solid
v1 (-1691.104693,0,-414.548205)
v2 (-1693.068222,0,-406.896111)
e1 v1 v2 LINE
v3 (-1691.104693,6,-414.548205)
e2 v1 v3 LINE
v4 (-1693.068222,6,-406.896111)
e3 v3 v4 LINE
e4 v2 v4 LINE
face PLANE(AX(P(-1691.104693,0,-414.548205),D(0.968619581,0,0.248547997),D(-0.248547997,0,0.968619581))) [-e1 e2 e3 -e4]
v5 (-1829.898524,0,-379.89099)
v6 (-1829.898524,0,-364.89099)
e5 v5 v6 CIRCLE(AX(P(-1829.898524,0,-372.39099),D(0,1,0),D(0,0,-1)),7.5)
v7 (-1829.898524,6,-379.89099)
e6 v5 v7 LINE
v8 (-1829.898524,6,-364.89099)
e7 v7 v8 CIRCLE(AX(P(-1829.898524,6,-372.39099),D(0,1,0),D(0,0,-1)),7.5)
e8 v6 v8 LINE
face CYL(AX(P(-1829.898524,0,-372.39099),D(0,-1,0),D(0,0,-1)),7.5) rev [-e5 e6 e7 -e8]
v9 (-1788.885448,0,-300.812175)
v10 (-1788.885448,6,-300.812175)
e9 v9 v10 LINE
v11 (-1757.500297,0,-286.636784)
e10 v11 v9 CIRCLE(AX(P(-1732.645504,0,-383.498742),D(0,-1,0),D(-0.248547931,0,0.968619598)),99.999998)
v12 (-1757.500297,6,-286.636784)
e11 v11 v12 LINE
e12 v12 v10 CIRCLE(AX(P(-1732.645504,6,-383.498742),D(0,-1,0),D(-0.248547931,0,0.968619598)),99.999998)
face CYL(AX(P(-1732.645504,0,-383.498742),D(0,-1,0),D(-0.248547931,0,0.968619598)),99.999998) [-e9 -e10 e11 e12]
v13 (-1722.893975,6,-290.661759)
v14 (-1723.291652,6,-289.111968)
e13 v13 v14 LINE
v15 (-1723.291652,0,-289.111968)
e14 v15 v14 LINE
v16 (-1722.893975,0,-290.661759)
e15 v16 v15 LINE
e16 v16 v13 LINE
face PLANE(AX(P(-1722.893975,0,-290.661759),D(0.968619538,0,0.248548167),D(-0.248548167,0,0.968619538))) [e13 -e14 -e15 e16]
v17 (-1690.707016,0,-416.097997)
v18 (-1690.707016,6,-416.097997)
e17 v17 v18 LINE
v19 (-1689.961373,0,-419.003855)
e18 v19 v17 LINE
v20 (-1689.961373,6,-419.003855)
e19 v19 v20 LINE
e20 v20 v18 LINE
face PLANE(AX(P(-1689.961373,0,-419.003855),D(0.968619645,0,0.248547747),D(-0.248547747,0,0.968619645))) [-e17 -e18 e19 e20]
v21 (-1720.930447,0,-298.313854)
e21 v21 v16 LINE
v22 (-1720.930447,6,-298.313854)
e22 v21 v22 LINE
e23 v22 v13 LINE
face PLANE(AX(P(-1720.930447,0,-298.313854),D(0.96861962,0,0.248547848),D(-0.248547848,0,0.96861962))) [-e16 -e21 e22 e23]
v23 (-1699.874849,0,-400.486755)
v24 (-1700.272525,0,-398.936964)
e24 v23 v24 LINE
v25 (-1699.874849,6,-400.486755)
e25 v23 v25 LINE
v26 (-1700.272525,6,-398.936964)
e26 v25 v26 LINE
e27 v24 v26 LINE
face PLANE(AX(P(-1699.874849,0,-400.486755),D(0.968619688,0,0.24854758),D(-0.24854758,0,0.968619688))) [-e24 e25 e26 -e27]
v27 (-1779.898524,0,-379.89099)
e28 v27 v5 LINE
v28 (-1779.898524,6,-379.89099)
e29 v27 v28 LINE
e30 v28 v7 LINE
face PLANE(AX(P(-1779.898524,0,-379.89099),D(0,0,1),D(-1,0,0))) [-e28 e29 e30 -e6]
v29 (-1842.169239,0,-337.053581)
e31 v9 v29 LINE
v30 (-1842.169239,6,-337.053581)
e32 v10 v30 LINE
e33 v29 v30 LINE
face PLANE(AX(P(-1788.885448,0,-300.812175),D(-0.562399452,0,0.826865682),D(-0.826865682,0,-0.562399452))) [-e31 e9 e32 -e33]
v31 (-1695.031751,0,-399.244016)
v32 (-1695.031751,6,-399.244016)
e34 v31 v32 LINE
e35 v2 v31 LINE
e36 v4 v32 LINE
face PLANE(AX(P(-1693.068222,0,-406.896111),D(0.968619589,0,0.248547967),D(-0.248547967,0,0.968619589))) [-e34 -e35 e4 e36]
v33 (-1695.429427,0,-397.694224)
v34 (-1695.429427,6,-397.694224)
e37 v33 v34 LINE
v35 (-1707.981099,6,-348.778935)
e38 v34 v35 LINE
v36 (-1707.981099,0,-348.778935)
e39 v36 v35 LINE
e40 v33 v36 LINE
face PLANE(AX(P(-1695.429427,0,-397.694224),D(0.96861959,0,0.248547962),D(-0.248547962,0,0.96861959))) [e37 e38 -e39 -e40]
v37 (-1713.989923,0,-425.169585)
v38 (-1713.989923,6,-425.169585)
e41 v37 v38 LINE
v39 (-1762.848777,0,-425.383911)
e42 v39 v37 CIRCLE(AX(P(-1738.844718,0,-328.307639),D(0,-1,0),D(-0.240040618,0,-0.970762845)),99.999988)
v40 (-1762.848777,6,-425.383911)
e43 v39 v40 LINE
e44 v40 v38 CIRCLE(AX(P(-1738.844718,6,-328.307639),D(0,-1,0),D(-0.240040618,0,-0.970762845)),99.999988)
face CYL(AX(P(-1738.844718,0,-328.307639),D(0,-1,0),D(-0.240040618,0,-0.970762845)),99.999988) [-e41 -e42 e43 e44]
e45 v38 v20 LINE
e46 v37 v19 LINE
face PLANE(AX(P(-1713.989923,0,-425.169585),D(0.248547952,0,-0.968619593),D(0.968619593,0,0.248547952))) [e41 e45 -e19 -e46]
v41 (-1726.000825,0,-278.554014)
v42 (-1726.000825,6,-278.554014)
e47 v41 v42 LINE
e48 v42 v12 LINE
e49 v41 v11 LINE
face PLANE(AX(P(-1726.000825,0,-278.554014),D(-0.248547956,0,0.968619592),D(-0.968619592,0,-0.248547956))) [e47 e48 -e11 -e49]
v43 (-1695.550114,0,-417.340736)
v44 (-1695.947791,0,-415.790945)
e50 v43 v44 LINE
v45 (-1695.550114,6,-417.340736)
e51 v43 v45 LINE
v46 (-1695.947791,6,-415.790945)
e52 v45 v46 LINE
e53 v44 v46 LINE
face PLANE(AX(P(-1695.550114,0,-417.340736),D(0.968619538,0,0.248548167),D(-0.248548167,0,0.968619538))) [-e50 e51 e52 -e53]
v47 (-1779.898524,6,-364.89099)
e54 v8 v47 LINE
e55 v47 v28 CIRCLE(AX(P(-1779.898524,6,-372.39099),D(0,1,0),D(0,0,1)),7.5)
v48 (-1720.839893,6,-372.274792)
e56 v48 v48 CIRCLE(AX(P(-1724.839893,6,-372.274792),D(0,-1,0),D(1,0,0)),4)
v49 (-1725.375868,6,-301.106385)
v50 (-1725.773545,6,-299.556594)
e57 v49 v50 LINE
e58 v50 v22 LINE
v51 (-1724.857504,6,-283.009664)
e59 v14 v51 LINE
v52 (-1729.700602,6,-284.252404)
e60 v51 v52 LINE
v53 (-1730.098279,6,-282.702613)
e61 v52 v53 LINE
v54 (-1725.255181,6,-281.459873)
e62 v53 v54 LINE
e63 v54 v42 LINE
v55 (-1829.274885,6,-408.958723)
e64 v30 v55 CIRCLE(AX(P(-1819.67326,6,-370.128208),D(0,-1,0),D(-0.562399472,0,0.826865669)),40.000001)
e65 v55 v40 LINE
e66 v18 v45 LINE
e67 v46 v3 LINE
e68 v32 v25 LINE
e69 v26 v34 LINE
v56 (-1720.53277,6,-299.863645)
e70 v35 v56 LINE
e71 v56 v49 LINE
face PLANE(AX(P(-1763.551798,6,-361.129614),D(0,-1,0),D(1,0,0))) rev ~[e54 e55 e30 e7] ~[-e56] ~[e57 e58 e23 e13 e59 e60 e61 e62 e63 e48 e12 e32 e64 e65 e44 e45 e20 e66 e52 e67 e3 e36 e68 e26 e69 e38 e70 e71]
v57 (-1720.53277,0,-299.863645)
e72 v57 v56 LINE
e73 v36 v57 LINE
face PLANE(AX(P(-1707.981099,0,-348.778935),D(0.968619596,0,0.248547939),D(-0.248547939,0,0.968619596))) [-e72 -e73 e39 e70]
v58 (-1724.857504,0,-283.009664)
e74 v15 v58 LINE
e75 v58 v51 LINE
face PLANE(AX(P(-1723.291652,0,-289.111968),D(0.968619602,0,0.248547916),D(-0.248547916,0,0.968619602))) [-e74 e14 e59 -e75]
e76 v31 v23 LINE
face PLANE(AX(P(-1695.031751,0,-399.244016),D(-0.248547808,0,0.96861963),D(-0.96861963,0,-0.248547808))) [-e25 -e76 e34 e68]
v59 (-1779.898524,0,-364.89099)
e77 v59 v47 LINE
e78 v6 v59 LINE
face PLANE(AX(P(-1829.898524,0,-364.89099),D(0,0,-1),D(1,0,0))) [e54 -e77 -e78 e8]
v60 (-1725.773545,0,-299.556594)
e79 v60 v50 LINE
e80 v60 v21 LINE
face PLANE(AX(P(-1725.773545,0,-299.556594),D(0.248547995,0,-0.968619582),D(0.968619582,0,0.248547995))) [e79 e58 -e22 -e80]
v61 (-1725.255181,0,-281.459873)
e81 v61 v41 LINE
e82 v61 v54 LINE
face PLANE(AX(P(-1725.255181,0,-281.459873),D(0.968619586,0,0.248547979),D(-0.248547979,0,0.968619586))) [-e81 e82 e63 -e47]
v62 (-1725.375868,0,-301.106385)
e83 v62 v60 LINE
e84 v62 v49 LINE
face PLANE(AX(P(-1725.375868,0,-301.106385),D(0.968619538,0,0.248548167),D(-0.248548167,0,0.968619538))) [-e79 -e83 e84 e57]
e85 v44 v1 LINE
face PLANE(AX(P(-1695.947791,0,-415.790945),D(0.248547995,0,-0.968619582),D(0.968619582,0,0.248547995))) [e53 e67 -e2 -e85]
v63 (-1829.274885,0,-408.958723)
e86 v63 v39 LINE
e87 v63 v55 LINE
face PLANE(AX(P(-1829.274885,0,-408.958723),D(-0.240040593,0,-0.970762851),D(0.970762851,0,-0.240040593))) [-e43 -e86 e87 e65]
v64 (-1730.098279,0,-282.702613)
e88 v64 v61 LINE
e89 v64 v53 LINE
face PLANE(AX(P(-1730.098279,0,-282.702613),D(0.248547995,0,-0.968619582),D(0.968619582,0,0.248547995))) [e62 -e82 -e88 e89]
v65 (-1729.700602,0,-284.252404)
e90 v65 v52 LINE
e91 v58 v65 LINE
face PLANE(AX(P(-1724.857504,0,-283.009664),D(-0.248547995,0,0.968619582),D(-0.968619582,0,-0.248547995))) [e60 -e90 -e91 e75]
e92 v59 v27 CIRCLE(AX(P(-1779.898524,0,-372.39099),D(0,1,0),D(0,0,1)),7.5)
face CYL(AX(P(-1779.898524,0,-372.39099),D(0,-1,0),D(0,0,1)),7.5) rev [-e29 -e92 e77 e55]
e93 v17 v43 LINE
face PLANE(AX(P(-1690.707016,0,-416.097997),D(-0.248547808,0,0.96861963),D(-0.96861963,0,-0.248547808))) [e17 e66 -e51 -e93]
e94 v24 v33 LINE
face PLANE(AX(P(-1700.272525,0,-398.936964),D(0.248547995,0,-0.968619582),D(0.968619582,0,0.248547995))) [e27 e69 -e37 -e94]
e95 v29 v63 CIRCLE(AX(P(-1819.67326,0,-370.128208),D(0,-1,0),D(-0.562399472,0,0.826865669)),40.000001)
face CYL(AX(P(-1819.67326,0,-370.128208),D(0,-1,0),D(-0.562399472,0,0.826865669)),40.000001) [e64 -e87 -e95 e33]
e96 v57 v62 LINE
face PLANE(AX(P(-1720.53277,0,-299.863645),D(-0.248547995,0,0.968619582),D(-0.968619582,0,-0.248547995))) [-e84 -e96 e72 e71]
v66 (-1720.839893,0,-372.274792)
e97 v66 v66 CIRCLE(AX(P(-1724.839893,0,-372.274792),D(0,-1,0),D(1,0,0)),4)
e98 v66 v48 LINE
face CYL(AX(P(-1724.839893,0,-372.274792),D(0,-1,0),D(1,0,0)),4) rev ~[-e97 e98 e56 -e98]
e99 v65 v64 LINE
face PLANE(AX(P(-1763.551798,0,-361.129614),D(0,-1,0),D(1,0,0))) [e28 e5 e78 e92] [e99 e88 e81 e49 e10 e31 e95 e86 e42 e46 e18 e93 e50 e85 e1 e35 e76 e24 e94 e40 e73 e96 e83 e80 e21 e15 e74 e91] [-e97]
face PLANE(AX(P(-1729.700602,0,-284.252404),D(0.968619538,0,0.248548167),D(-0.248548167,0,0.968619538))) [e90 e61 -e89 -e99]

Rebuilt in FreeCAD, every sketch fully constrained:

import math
import FreeCAD as App
import Part
import Sketcher
Q = App.Units.Quantity

doc = App.newDocument("Part")
body = doc.addObject("PartDesign::Body", "Body")

# Sketch on XZ plane
sketch1 = doc.addObject("Sketcher::SketchObject", "Sketch")
body.addObject(sketch1)
sketch1.AttachmentSupport = (doc.XZ_Plane, [""])
sketch1.MapMode = "FlatFace"
sketch1.addGeometry(Part.LineSegment(App.Vector(-1720.9, -298.3, 0), App.Vector(-1722.9, -290.7, 0)), False)
sketch1.addGeometry(Part.LineSegment(App.Vector(-1722.9, -290.7, 0), App.Vector(-1723.3, -289.1, 0)), False)
sketch1.addGeometry(Part.LineSegment(App.Vector(-1723.3, -289.1, 0), App.Vector(-1724.9, -283, 0)), False)
sketch1.addGeometry(Part.LineSegment(App.Vector(-1724.9, -283, 0), App.Vector(-1729.7, -284.3, 0)), False)
sketch1.addGeometry(Part.LineSegment(App.Vector(-1729.7, -284.3, 0), App.Vector(-1730.1, -282.7, 0)), False)
sketch1.addGeometry(Part.LineSegment(App.Vector(-1730.1, -282.7, 0), App.Vector(-1725.3, -281.5, 0)), False)
sketch1.addGeometry(Part.LineSegment(App.Vector(-1725.3, -281.5, 0), App.Vector(-1726, -278.6, 0)), False)
sketch1.addGeometry(Part.LineSegment(App.Vector(-1726, -278.6, 0), App.Vector(-1757.5, -286.6, 0)), False)
sketch1.addGeometry(Part.ArcOfCircle(Part.Circle(App.Vector(-1732.6, -383.5, 0), App.Vector(0, 0, 1), 100), math.radians(104.39), math.radians(124.22)), False)
sketch1.addGeometry(Part.LineSegment(App.Vector(-1788.9, -300.8, 0), App.Vector(-1842.2, -337.1, 0)), False)
sketch1.addGeometry(Part.ArcOfCircle(Part.Circle(App.Vector(-1819.7, -370.1, 0), App.Vector(0, 0, 1), 40), math.radians(124), math.radians(256)), False)
sketch1.addGeometry(Part.LineSegment(App.Vector(-1829.3, -409, 0), App.Vector(-1762.8, -425.4, 0)), False)
sketch1.addGeometry(Part.ArcOfCircle(Part.Circle(App.Vector(-1738.8, -328.3, 0), App.Vector(0, 0, 1), 100), math.radians(-104), math.radians(-76)), False)
sketch1.addGeometry(Part.LineSegment(App.Vector(-1714, -425.2, 0), App.Vector(-1690, -419, 0)), False)
sketch1.addGeometry(Part.LineSegment(App.Vector(-1690, -419, 0), App.Vector(-1690.7, -416.1, 0)), False)
sketch1.addGeometry(Part.LineSegment(App.Vector(-1690.7, -416.1, 0), App.Vector(-1695.6, -417.3, 0)), False)
sketch1.addGeometry(Part.LineSegment(App.Vector(-1695.6, -417.3, 0), App.Vector(-1695.9, -415.8, 0)), False)
sketch1.addGeometry(Part.LineSegment(App.Vector(-1695.9, -415.8, 0), App.Vector(-1691.1, -414.5, 0)), False)
sketch1.addGeometry(Part.LineSegment(App.Vector(-1691.1, -414.5, 0), App.Vector(-1693.1, -406.9, 0)), False)
sketch1.addGeometry(Part.LineSegment(App.Vector(-1693.1, -406.9, 0), App.Vector(-1695, -399.2, 0)), False)
sketch1.addGeometry(Part.LineSegment(App.Vector(-1695, -399.2, 0), App.Vector(-1699.9, -400.5, 0)), False)
sketch1.addGeometry(Part.LineSegment(App.Vector(-1699.9, -400.5, 0), App.Vector(-1700.3, -398.9, 0)), False)
sketch1.addGeometry(Part.LineSegment(App.Vector(-1700.3, -398.9, 0), App.Vector(-1695.4, -397.7, 0)), False)
sketch1.addGeometry(Part.LineSegment(App.Vector(-1695.4, -397.7, 0), App.Vector(-1708, -348.8, 0)), False)
sketch1.addGeometry(Part.LineSegment(App.Vector(-1708, -348.8, 0), App.Vector(-1720.5, -299.9, 0)), False)
sketch1.addGeometry(Part.LineSegment(App.Vector(-1720.5, -299.9, 0), App.Vector(-1725.4, -301.1, 0)), False)
sketch1.addGeometry(Part.LineSegment(App.Vector(-1725.4, -301.1, 0), App.Vector(-1725.8, -299.6, 0)), False)
sketch1.addGeometry(Part.LineSegment(App.Vector(-1725.8, -299.6, 0), App.Vector(-1720.9, -298.3, 0)), False)
sketch1.addGeometry(Part.LineSegment(App.Vector(-1779.9, -379.9, 0), App.Vector(-1829.9, -379.9, 0)), False)
sketch1.addGeometry(Part.ArcOfCircle(Part.Circle(App.Vector(-1829.9, -372.4, 0), App.Vector(0, 0, 1), 7.5), math.radians(90), math.radians(270)), False)
sketch1.addGeometry(Part.LineSegment(App.Vector(-1829.9, -364.9, 0), App.Vector(-1779.9, -364.9, 0)), False)
sketch1.addGeometry(Part.ArcOfCircle(Part.Circle(App.Vector(-1779.9, -372.4, 0), App.Vector(0, 0, 1), 7.5), math.radians(-90), math.radians(90)), False)
sketch1.addGeometry(Part.Circle(App.Vector(-1724.8, -372.3, 0), App.Vector(0, 0, 1), 4), False)
sketch1.addConstraint(Sketcher.Constraint("Coincident", 0, 2, 1, 1))
sketch1.addConstraint(Sketcher.Constraint("Coincident", 1, 2, 2, 1))
sketch1.addConstraint(Sketcher.Constraint("Coincident", 2, 2, 3, 1))
sketch1.addConstraint(Sketcher.Constraint("Coincident", 3, 2, 4, 1))
sketch1.addConstraint(Sketcher.Constraint("Coincident", 4, 2, 5, 1))
sketch1.addConstraint(Sketcher.Constraint("Coincident", 5, 2, 6, 1))
sketch1.addConstraint(Sketcher.Constraint("Coincident", 6, 2, 7, 1))
sketch1.addConstraint(Sketcher.Constraint("Tangent", 7, 2, 8, 1))
sketch1.addConstraint(Sketcher.Constraint("Tangent", 8, 2, 9, 1))
sketch1.addConstraint(Sketcher.Constraint("Tangent", 9, 2, 10, 1))
sketch1.addConstraint(Sketcher.Constraint("Tangent", 10, 2, 11, 1))
sketch1.addConstraint(Sketcher.Constraint("Tangent", 11, 2, 12, 1))
sketch1.addConstraint(Sketcher.Constraint("Tangent", 12, 2, 13, 1))
sketch1.addConstraint(Sketcher.Constraint("Coincident", 13, 2, 14, 1))
sketch1.addConstraint(Sketcher.Constraint("Coincident", 14, 2, 15, 1))
sketch1.addConstraint(Sketcher.Constraint("Coincident", 15, 2, 16, 1))
sketch1.addConstraint(Sketcher.Constraint("Coincident", 16, 2, 17, 1))
sketch1.addConstraint(Sketcher.Constraint("Coincident", 17, 2, 18, 1))
sketch1.addConstraint(Sketcher.Constraint("Coincident", 18, 2, 19, 1))
sketch1.addConstraint(Sketcher.Constraint("Coincident", 19, 2, 20, 1))
sketch1.addConstraint(Sketcher.Constraint("Coincident", 20, 2, 21, 1))
sketch1.addConstraint(Sketcher.Constraint("Coincident", 21, 2, 22, 1))
sketch1.addConstraint(Sketcher.Constraint("Coincident", 22, 2, 23, 1))
sketch1.addConstraint(Sketcher.Constraint("Coincident", 23, 2, 24, 1))
sketch1.addConstraint(Sketcher.Constraint("Coincident", 24, 2, 25, 1))
sketch1.addConstraint(Sketcher.Constraint("Coincident", 25, 2, 26, 1))
sketch1.addConstraint(Sketcher.Constraint("Coincident", 26, 2, 27, 1))
sketch1.addConstraint(Sketcher.Constraint("Coincident", 27, 2, 0, 1))
sketch1.addConstraint(Sketcher.Constraint("Tangent", 28, 2, 29, 2))
sketch1.addConstraint(Sketcher.Constraint("Tangent", 29, 1, 30, 1))
sketch1.addConstraint(Sketcher.Constraint("Tangent", 30, 2, 31, 2))
sketch1.addConstraint(Sketcher.Constraint("Tangent", 31, 1, 28, 1))
sketch1.addConstraint(Sketcher.Constraint("Horizontal", 28))
sketch1.addConstraint(Sketcher.Constraint("Horizontal", 30))
sketch1.addConstraint(Sketcher.Constraint("Parallel", 0, 1))
sketch1.addConstraint(Sketcher.Constraint("Parallel", 1, 2))
sketch1.addConstraint(Sketcher.Constraint("Perpendicular", 2, 3))
sketch1.addConstraint(Sketcher.Constraint("Perpendicular", 3, 4))
sketch1.addConstraint(Sketcher.Constraint("Perpendicular", 4, 5))
sketch1.addConstraint(Sketcher.Constraint("Perpendicular", 5, 6))
sketch1.addConstraint(Sketcher.Constraint("Perpendicular", 6, 7))
sketch1.addConstraint(Sketcher.Constraint("Parallel", 7, 13))
sketch1.addConstraint(Sketcher.Constraint("Perpendicular", 13, 14))
sketch1.addConstraint(Sketcher.Constraint("Perpendicular", 14, 15))
sketch1.addConstraint(Sketcher.Constraint("Perpendicular", 15, 16))
sketch1.addConstraint(Sketcher.Constraint("Perpendicular", 16, 17))
sketch1.addConstraint(Sketcher.Constraint("Perpendicular", 17, 18))
sketch1.addConstraint(Sketcher.Constraint("Parallel", 18, 19))
sketch1.addConstraint(Sketcher.Constraint("Perpendicular", 19, 20))
sketch1.addConstraint(Sketcher.Constraint("Perpendicular", 20, 21))
sketch1.addConstraint(Sketcher.Constraint("Perpendicular", 21, 22))
sketch1.addConstraint(Sketcher.Constraint("Perpendicular", 22, 23))
sketch1.addConstraint(Sketcher.Constraint("Parallel", 23, 24))
sketch1.addConstraint(Sketcher.Constraint("Perpendicular", 24, 25))
sketch1.addConstraint(Sketcher.Constraint("Perpendicular", 25, 26))
sketch1.addConstraint(Sketcher.Constraint("Perpendicular", 26, 27))
sketch1.addConstraint(Sketcher.Constraint("Equal", 1, 4))
sketch1.addConstraint(Sketcher.Constraint("Equal", 3, 5))
sketch1.addConstraint(Sketcher.Constraint("Equal", 6, 14))
sketch1.addConstraint(Sketcher.Constraint("Equal", 5, 15))
sketch1.addConstraint(Sketcher.Constraint("Equal", 4, 16))
sketch1.addConstraint(Sketcher.Constraint("Equal", 15, 17))
sketch1.addConstraint(Sketcher.Constraint("Equal", 0, 18))
sketch1.addConstraint(Sketcher.Constraint("Equal", 18, 19))
sketch1.addConstraint(Sketcher.Constraint("Equal", 17, 20))
sketch1.addConstraint(Sketcher.Constraint("Equal", 16, 21))
sketch1.addConstraint(Sketcher.Constraint("Equal", 20, 22))
sketch1.addConstraint(Sketcher.Constraint("Equal", 23, 24))
sketch1.addConstraint(Sketcher.Constraint("Equal", 22, 25))
sketch1.addConstraint(Sketcher.Constraint("Equal", 21, 26))
sketch1.addConstraint(Sketcher.Constraint("Equal", 25, 27))
sketch1.addConstraint(Sketcher.Constraint("Diameter", 32, Q("8 mm")))
sketch1.addConstraint(Sketcher.Constraint("Radius", 10, Q("40.000001 mm")))
sketch1.addConstraint(Sketcher.Constraint("Radius", 29, Q("7.5 mm")))
sketch1.addConstraint(Sketcher.Constraint("DistanceX", 28, 2, 28, 1, Q("50 mm")))
sketch1.addConstraint(Sketcher.Constraint("Distance", 3, Q("5 mm")))
sketch1.addConstraint(Sketcher.Constraint("Distance", 6, Q("3 mm")))
sketch1.addConstraint(Sketcher.Constraint("Distance", 0, Q("7.9 mm")))
sketch1.addConstraint(Sketcher.Constraint("Distance", 1, Q("1.6 mm")))
sketch1.addConstraint(Sketcher.Constraint("Distance", 2, Q("6.300001 mm")))
sketch1.addConstraint(Sketcher.Constraint("Distance", 23, Q("50.5 mm")))
sketch1.addConstraint(Sketcher.Constraint("Radius", 8, Q("99.999998 mm")))
sketch1.addConstraint(Sketcher.Constraint("Radius", 12, Q("99.999988 mm")))
sketch1.addConstraint(Sketcher.Constraint("DistanceX", 8, 3, 2, 2, Q("7.788 mm")))
sketch1.addConstraint(Sketcher.Constraint("DistanceX", 3, 2, -1, 1, Q("1729.700602 mm")))
sketch1.addConstraint(Sketcher.Constraint("DistanceX", 23, 2, -1, 1, Q("1707.981099 mm")))
sketch1.addConstraint(Sketcher.Constraint("DistanceX", 31, 3, 12, 2, Q("65.908601 mm")))
sketch1.addConstraint(Sketcher.Constraint("Distance", 11, Q("68.42671 mm")))
sketch1.addConstraint(Sketcher.Constraint("DistanceY", 8, 3, -1, 1, Q("383.498742 mm")))
sketch1.addConstraint(Sketcher.Constraint("DistanceX", 10, 3, -1, 1, Q("1819.67326 mm")))
sketch1.addConstraint(Sketcher.Constraint("DistanceY", 10, 3, -1, 1, Q("370.128208 mm")))
sketch1.addConstraint(Sketcher.Constraint("DistanceY", 29, 3, -1, 1, Q("372.39099 mm")))
sketch1.addConstraint(Sketcher.Constraint("DistanceY", 32, 3, -1, 1, Q("372.274792 mm")))
sketch1.addConstraint(Sketcher.Constraint("DistanceX", 8, 3, 32, 3, Q("7.805611 mm")))
pad1 = doc.addObject("PartDesign::Pad", "Pad")
body.addObject(pad1)
pad1.Profile = sketch1
pad1.Length = 6
pad1.Reversed = True

doc.recompute()
